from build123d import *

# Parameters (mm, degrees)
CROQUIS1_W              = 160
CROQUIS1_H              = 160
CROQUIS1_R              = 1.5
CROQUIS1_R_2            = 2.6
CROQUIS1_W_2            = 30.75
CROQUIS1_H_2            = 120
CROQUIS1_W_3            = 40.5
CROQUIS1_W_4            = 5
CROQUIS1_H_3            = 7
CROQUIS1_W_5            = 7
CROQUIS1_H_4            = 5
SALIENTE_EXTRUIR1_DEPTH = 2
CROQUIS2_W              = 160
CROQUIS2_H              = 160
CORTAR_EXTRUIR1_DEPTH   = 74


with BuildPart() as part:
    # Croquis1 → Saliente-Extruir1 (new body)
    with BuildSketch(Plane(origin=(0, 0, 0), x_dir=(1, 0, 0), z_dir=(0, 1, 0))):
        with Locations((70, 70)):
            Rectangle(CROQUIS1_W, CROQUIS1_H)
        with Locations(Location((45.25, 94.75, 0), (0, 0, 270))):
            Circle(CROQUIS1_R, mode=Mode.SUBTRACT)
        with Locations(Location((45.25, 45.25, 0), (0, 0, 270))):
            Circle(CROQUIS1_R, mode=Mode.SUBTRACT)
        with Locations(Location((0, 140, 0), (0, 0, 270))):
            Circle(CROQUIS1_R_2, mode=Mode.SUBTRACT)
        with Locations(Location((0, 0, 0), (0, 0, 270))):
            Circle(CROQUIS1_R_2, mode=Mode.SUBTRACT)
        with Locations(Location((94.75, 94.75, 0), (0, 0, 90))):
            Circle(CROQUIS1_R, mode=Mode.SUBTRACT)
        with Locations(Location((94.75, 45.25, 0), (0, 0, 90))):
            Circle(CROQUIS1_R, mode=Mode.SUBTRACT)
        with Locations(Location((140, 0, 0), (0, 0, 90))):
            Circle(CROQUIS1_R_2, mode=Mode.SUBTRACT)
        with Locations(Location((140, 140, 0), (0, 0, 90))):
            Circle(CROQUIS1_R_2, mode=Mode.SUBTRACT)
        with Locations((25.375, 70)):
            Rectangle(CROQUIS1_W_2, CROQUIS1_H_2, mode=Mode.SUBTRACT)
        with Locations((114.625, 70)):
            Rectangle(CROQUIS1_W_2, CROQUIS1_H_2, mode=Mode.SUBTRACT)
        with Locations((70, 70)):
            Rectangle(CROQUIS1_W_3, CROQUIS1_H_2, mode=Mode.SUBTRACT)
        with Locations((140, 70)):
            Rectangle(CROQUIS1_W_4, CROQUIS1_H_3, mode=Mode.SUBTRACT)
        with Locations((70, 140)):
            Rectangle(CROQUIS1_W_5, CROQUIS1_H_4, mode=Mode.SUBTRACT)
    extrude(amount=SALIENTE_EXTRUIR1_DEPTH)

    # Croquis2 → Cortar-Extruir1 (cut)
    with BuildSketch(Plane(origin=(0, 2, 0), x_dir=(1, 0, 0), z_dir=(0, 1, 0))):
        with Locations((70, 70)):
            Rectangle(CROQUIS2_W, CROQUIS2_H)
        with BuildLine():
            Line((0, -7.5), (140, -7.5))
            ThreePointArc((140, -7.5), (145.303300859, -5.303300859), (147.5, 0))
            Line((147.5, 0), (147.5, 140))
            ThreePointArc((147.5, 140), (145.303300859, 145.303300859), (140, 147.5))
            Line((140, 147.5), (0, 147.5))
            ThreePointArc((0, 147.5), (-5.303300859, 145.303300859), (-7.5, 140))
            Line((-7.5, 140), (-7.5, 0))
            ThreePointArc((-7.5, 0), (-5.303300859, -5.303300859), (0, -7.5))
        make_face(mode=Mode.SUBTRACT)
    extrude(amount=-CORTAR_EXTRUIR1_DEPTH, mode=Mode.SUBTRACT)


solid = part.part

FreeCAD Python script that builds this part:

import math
import FreeCAD as App
import Part
import Sketcher

V = App.Vector


def add_polygon(sketch, points):
    """Adds a closed chain of lines whose ends are joined by coincident constraints."""
    first, n = sketch.GeometryCount, len(points)
    for a, b in zip(points, points[1:] + points[:1]):
        sketch.addGeometry(Part.LineSegment(App.Vector(*a, 0), App.Vector(*b, 0)), False)
    for i in range(n):
        sketch.addConstraint(Sketcher.Constraint("Coincident", first + i, 2, first + (i + 1) % n, 1))

doc = App.newDocument("Part")
body = doc.addObject("PartDesign::Body", "Body")

# Sketch on XZ plane
sketch1 = doc.addObject("Sketcher::SketchObject", "Sketch")
body.addObject(sketch1)
sketch1.AttachmentSupport = (doc.XZ_Plane, [""])
sketch1.MapMode = "FlatFace"
add_polygon(sketch1, [(-10, -150), (-10, 10), (150, 10), (150, -150)])  # lines 0-3
sketch1.addGeometry(Part.Circle(V(0, 0, 0), V(0, 0, 1), 2.6), False)  # 4
sketch1.addGeometry(Part.Circle(V(45.2, -45.2, 0), V(0, 0, 1), 1.5), False)  # 5
sketch1.addGeometry(Part.Circle(V(140, 0, 0), V(0, 0, 1), 2.6), False)  # 6
sketch1.addGeometry(Part.Circle(V(94.8, -45.2, 0), V(0, 0, 1), 1.5), False)  # 7
add_polygon(sketch1, [(40.8, -10), (10, -10), (10, -130), (40.8, -130)])  # lines 8-11
sketch1.addGeometry(Part.Circle(V(45.2, -94.8, 0), V(0, 0, 1), 1.5), False)  # 12
sketch1.addGeometry(Part.Circle(V(0, -140, 0), V(0, 0, 1), 2.6), False)  # 13
add_polygon(sketch1, [(90.2, -10), (49.8, -10), (49.8, -130), (90.2, -130)])  # lines 14-17
sketch1.addGeometry(Part.Circle(V(94.8, -94.8, 0), V(0, 0, 1), 1.5), False)  # 18
add_polygon(sketch1, [(130, -10), (99.2, -10), (99.2, -130), (130, -130)])  # lines 19-22
add_polygon(sketch1, [(142.5, -66.5), (137.5, -66.5), (137.5, -73.5), (142.5, -73.5)])  # lines 23-26
add_polygon(sketch1, [(73.5, -137.5), (66.5, -137.5), (66.5, -142.5), (73.5, -142.5)])  # lines 27-30
sketch1.addGeometry(Part.Circle(V(140, -140, 0), V(0, 0, 1), 2.6), False)  # 31
sketch1.addConstraint([
    Sketcher.Constraint("Vertical", 0),
    Sketcher.Constraint("Horizontal", 1),
    Sketcher.Constraint("Vertical", 2),
    Sketcher.Constraint("Horizontal", 3),
    Sketcher.Constraint("Horizontal", 8),
    Sketcher.Constraint("Vertical", 9),
    Sketcher.Constraint("Horizontal", 10),
    Sketcher.Constraint("Vertical", 11),
    Sketcher.Constraint("Horizontal", 14),
    Sketcher.Constraint("Vertical", 15),
    Sketcher.Constraint("Horizontal", 16),
    Sketcher.Constraint("Vertical", 17),
    Sketcher.Constraint("Horizontal", 19),
    Sketcher.Constraint("Vertical", 20),
    Sketcher.Constraint("Horizontal", 21),
    Sketcher.Constraint("Vertical", 22),
    Sketcher.Constraint("Horizontal", 23),
    Sketcher.Constraint("Vertical", 24),
    Sketcher.Constraint("Horizontal", 25),
    Sketcher.Constraint("Vertical", 26),
    Sketcher.Constraint("Horizontal", 27),
    Sketcher.Constraint("Vertical", 28),
    Sketcher.Constraint("Horizontal", 29),
    Sketcher.Constraint("Vertical", 30),
    Sketcher.Constraint("Coincident", 4, 3, -1, 1),
    Sketcher.Constraint("Equal", 4, 6),
    Sketcher.Constraint("Equal", 5, 7),
    Sketcher.Constraint("Equal", 7, 12),
    Sketcher.Constraint("Equal", 6, 13),
    Sketcher.Constraint("Equal", 12, 18),
    Sketcher.Constraint("Equal", 13, 31),
    Sketcher.Constraint("Symmetric", 0, 2, 8, 2, -1, 1),
    Sketcher.Constraint("PointOnObject", 6, 3, -1),
    Sketcher.Constraint("PointOnObject", 13, 3, -2),
    Sketcher.Constraint("Horizontal", 5, 3, 7, 3),
    Sketcher.Constraint("Horizontal", 12, 3, 18, 3),
    Sketcher.Constraint("Horizontal", 13, 3, 31, 3),
    Sketcher.Constraint("Horizontal", 11, 2, 14, 2),
    Sketcher.Constraint("Horizontal", 10, 2, 15, 2),
    Sketcher.Constraint("Horizontal", 17, 2, 19, 2),
    Sketcher.Constraint("Horizontal", 16, 2, 20, 2),
    Sketcher.Constraint("Vertical", 5, 3, 12, 3),
    Sketcher.Constraint("Vertical", 7, 3, 18, 3),
    Sketcher.Constraint("Vertical", 6, 3, 31, 3),
    Sketcher.Constraint("Equal", 10, 19),
    Sketcher.Constraint("Equal", 3, 0),
    Sketcher.Constraint("Equal", 29, 24),
    Sketcher.Constraint("Equal", 25, 28),
    Sketcher.Constraint("Diameter", 5, 3.0),
    Sketcher.Constraint("Diameter", 4, 5.2),
    Sketcher.Constraint("DistanceX", 1, 1, 1, 2, 160.0),
    Sketcher.Constraint("DistanceX", 23, 2, 23, 1, 5.0),
    Sketcher.Constraint("DistanceX", 27, 2, 27, 1, 7.0),
    Sketcher.Constraint("DistanceY", 9, 2, 9, 1, 120.0),
    Sketcher.Constraint("DistanceX", 14, 2, 14, 1, 40.5),
    Sketcher.Constraint("DistanceX", -1, 1, 6, 3, 140.0),
    Sketcher.Constraint("DistanceY", 13, 3, -1, 1, 140.0),
    Sketcher.Constraint("DistanceX", 0, 2, -1, 1, 10.0),
    Sketcher.Constraint("DistanceY", -1, 1, 0, 2, 10.0),
    Sketcher.Constraint("DistanceX", -1, 1, 21, 2, 130.0),
    Sketcher.Constraint("DistanceX", 10, 2, 18, 3, 54.0),
    Sketcher.Constraint("DistanceX", 11, 2, 14, 2, 9.0),
    Sketcher.Constraint("DistanceX", 12, 3, 16, 2, 45.0),
    Sketcher.Constraint("DistanceX", 17, 2, 19, 2, 9.0),
    Sketcher.Constraint("DistanceX", -1, 1, 23, 2, 137.5),
    Sketcher.Constraint("DistanceY", 23, 2, -1, 1, 66.5),
    Sketcher.Constraint("DistanceX", -1, 1, 27, 2, 66.5),
    Sketcher.Constraint("DistanceY", 27, 2, -1, 1, 137.5),
    Sketcher.Constraint("DistanceY", 12, 3, 5, 3, 49.5),
    Sketcher.Constraint("DistanceY", 5, 3, -1, 1, 45.25),
])
pad1 = doc.addObject("PartDesign::Pad", "Pad")
body.addObject(pad1)
pad1.Profile = sketch1
pad1.Length = 2
pad1.Reversed = True

# Sketch on XZ plane
sketch2 = doc.addObject("Sketcher::SketchObject", "Sketch001")
body.addObject(sketch2)
sketch2.AttachmentSupport = (doc.XZ_Plane, [""])
sketch2.MapMode = "FlatFace"
sketch2.AttachmentOffset = App.Placement(V(0, 0, -2), App.Rotation())
add_polygon(sketch2, [(-10, -150), (-10, 10), (150, 10), (150, -150)])  # lines 0-3
sketch2.addGeometry(Part.LineSegment(V(140, 8, 0), V(0, 8, 0)), False)  # 4
sketch2.addGeometry(Part.ArcOfCircle(Part.Circle(V(0, 0, 0), V(0, 0, 1), 8), math.radians(90), math.radians(180)), False)  # 5
sketch2.addGeometry(Part.LineSegment(V(-8, 0, 0), V(-8, -140, 0)), False)  # 6
sketch2.addGeometry(Part.ArcOfCircle(Part.Circle(V(0, -140, 0), V(0, 0, 1), 8), math.radians(180), math.radians(270)), False)  # 7
sketch2.addGeometry(Part.LineSegment(V(0, -148, 0), V(140, -148, 0)), False)  # 8
sketch2.addGeometry(Part.ArcOfCircle(Part.Circle(V(140, -140, 0), V(0, 0, 1), 8), math.radians(-90), math.radians(0)), False)  # 9
sketch2.addGeometry(Part.LineSegment(V(148, -140, 0), V(148, 0, 0)), False)  # 10
sketch2.addGeometry(Part.ArcOfCircle(Part.Circle(V(140, 0, 0), V(0, 0, 1), 8), math.radians(0), math.radians(90)), False)  # 11
sketch2.addConstraint([
    Sketcher.Constraint("Tangent", 4, 2, 5, 1),
    Sketcher.Constraint("Tangent", 5, 2, 6, 1),
    Sketcher.Constraint("Tangent", 6, 2, 7, 1),
    Sketcher.Constraint("Tangent", 7, 2, 8, 1),
    Sketcher.Constraint("Tangent", 8, 2, 9, 1),
    Sketcher.Constraint("Tangent", 9, 2, 10, 1),
    Sketcher.Constraint("Tangent", 10, 2, 11, 1),
    Sketcher.Constraint("Tangent", 11, 2, 4, 1),
    Sketcher.Constraint("Vertical", 0),
    Sketcher.Constraint("Horizontal", 1),
    Sketcher.Constraint("Vertical", 2),
    Sketcher.Constraint("Horizontal", 3),
    Sketcher.Constraint("Horizontal", 4),
    Sketcher.Constraint("Vertical", 6),
    Sketcher.Constraint("Horizontal", 8),
    Sketcher.Constraint("Vertical", 10),
    Sketcher.Constraint("Coincident", 5, 3, -1, 1),
    Sketcher.Constraint("Equal", 5, 7),
    Sketcher.Constraint("Equal", 7, 9),
    Sketcher.Constraint("Equal", 9, 11),
    Sketcher.Constraint("Equal", 3, 0),
    Sketcher.Constraint("Equal", 8, 6),
    Sketcher.Constraint("Radius", 5, 7.5),
    Sketcher.Constraint("DistanceX", 1, 1, 1, 2, 160.0),
    Sketcher.Constraint("DistanceX", 4, 2, 4, 1, 140.0),
    Sketcher.Constraint("DistanceX", 0, 2, -1, 1, 10.0),
    Sketcher.Constraint("DistanceY", -1, 1, 0, 2, 10.0),
])
pocket1 = doc.addObject("PartDesign::Pocket", "Pocket")
body.addObject(pocket1)
pocket1.Profile = sketch2
pocket1.Length = 74
pocket1.Reversed = True

doc.recompute()
